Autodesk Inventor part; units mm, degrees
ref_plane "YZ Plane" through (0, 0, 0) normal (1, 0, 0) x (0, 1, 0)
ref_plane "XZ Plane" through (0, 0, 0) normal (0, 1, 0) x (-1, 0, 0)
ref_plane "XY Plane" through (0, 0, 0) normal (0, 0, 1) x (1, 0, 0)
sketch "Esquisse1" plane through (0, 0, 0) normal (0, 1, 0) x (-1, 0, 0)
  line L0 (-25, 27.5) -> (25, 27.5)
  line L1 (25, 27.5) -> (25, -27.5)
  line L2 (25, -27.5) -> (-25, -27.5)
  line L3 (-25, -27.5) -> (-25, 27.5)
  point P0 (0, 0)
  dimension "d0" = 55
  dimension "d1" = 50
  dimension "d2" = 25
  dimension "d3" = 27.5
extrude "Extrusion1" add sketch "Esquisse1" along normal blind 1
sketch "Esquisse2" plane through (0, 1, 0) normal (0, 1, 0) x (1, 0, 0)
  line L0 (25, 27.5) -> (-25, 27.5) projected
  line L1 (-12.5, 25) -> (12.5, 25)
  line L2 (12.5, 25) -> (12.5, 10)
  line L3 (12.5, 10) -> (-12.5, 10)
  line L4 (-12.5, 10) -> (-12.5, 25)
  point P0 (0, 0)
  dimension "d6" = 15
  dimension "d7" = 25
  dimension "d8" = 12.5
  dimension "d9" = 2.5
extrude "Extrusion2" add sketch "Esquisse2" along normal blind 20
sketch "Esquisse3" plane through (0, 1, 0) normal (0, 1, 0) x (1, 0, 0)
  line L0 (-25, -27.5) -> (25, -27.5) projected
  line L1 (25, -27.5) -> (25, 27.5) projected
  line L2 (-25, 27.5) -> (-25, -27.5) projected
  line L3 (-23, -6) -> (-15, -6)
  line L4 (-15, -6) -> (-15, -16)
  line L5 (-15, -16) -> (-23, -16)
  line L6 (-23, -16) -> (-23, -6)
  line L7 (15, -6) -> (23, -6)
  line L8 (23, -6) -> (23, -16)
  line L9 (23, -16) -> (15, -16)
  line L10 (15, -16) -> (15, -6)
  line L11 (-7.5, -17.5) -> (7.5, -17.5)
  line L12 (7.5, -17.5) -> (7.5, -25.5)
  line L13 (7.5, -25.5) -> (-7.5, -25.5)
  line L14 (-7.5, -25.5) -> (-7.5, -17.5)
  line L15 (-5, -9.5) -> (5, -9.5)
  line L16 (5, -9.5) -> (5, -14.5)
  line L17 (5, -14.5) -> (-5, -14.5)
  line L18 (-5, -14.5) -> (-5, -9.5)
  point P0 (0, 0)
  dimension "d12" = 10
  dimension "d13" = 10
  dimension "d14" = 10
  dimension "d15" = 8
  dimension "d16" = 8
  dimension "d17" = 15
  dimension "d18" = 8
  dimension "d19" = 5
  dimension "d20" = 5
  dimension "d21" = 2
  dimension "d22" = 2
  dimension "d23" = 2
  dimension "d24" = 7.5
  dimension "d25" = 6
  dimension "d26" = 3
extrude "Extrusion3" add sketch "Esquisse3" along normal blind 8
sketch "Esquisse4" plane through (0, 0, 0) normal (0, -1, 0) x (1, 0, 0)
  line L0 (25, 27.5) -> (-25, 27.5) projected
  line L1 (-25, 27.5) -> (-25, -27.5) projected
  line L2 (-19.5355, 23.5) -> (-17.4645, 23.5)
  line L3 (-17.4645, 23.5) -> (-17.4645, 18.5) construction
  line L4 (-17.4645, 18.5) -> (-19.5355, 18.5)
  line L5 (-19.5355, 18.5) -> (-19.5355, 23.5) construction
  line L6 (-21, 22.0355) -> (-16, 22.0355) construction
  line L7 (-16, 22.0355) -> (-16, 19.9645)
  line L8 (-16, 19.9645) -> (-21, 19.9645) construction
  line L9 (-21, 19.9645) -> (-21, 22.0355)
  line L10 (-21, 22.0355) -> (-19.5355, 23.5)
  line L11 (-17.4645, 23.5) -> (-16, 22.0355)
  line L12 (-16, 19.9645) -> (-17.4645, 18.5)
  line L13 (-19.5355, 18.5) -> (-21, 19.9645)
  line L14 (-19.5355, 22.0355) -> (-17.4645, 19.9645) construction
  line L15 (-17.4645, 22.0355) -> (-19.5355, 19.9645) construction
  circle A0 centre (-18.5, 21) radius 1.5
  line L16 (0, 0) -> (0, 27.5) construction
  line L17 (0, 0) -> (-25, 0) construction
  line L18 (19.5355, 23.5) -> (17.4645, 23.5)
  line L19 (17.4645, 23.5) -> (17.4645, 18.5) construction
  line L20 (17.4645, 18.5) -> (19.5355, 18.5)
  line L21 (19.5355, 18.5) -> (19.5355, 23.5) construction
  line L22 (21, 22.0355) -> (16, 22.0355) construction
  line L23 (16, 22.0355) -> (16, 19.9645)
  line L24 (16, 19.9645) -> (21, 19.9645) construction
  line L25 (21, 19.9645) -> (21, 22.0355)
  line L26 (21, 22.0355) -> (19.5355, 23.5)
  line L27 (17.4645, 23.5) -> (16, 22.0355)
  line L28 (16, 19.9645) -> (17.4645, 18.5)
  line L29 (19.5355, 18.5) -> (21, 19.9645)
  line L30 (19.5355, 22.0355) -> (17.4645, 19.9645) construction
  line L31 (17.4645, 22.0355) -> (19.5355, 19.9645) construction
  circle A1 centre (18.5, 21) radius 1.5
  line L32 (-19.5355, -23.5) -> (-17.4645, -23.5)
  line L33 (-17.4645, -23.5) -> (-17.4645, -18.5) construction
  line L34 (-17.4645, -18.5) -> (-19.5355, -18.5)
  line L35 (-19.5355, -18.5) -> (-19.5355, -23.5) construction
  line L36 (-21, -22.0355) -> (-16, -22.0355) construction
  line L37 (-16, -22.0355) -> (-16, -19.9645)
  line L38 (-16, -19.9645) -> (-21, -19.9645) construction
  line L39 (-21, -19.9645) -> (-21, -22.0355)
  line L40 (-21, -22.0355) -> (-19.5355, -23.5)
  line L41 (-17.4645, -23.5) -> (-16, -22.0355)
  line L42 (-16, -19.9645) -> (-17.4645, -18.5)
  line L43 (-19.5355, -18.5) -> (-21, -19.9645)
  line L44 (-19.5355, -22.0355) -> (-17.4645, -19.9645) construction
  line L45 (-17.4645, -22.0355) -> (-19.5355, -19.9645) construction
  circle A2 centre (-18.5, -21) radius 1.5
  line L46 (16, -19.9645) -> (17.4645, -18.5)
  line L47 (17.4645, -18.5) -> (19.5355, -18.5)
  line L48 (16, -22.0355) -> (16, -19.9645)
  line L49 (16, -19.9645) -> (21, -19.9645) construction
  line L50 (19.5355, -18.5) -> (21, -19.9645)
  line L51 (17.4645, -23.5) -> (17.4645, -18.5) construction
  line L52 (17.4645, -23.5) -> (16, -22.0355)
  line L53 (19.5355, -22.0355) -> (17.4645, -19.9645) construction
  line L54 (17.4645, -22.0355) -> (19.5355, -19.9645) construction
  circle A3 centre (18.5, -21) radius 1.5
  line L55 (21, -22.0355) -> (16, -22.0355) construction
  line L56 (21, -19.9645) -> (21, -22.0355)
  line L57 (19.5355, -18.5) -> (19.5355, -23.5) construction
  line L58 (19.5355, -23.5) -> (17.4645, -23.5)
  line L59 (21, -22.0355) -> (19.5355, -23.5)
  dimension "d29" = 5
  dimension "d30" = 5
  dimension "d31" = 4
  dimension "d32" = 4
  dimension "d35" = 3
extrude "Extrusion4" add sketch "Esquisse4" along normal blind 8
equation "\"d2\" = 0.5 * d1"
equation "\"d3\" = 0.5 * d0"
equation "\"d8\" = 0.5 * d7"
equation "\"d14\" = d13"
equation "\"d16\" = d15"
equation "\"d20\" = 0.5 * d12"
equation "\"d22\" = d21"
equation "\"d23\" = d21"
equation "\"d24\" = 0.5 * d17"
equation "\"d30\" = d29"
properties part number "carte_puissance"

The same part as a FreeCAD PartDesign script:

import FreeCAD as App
import Part
import Sketcher
from FreeCAD import Vector

doc = App.newDocument("Part")
body = doc.addObject("PartDesign::Body", "Body")

sketch1 = body.newObject("Sketcher::SketchObject", "Sketch")
sketch1.AttachmentSupport = (doc.getObject("XZ_Plane"), [""])
sketch1.MapMode = "FlatFace"
sketch1.addGeometry(Part.LineSegment(Vector(-25, 28, 0), Vector(25, 28, 0)), False)
sketch1.addGeometry(Part.LineSegment(Vector(25, 28, 0), Vector(25, -28, 0)), False)
sketch1.addGeometry(Part.LineSegment(Vector(25, -28, 0), Vector(-25, -28, 0)), False)
sketch1.addGeometry(Part.LineSegment(Vector(-25, -28, 0), Vector(-25, 28, 0)), False)
sketch1.addConstraint(Sketcher.Constraint("Coincident", 0, 2, 1, 1))
sketch1.addConstraint(Sketcher.Constraint("Coincident", 1, 2, 2, 1))
sketch1.addConstraint(Sketcher.Constraint("Coincident", 2, 2, 3, 1))
sketch1.addConstraint(Sketcher.Constraint("Coincident", 3, 2, 0, 1))
sketch1.addConstraint(Sketcher.Constraint("Horizontal", 0))
sketch1.addConstraint(Sketcher.Constraint("Vertical", 1))
sketch1.addConstraint(Sketcher.Constraint("Horizontal", 2))
sketch1.addConstraint(Sketcher.Constraint("Vertical", 3))
sketch1.addConstraint(Sketcher.Constraint("Symmetric", 0, 2, 2, 2, -1, 1))
sketch1.addConstraint(Sketcher.Constraint("DistanceX", 0, 1, 0, 2, 50.0))
sketch1.addConstraint(Sketcher.Constraint("DistanceY", 1, 2, 1, 1, 55.0))
pad1 = body.newObject("PartDesign::Pad", "Pad")
pad1.Profile = sketch1
pad1.Length = 1
pad1.Reversed = True

sketch2 = body.newObject("Sketcher::SketchObject", "Sketch001")
sketch2.AttachmentSupport = (doc.getObject("XZ_Plane"), [""])
sketch2.MapMode = "FlatFace"
sketch2.AttachmentOffset = App.Placement(Vector(0, 0, -1), App.Rotation())
sketch2.addGeometry(Part.LineSegment(Vector(12, -25, 0), Vector(-12, -25, 0)), False)
sketch2.addGeometry(Part.LineSegment(Vector(-12, -25, 0), Vector(-12, -10, 0)), False)
sketch2.addGeometry(Part.LineSegment(Vector(-12, -10, 0), Vector(12, -10, 0)), False)
sketch2.addGeometry(Part.LineSegment(Vector(12, -10, 0), Vector(12, -25, 0)), False)
sketch2.addConstraint(Sketcher.Constraint("Coincident", 0, 2, 1, 1))
sketch2.addConstraint(Sketcher.Constraint("Coincident", 1, 2, 2, 1))
sketch2.addConstraint(Sketcher.Constraint("Coincident", 2, 2, 3, 1))
sketch2.addConstraint(Sketcher.Constraint("Coincident", 3, 2, 0, 1))
sketch2.addConstraint(Sketcher.Constraint("Horizontal", 0))
sketch2.addConstraint(Sketcher.Constraint("Vertical", 1))
sketch2.addConstraint(Sketcher.Constraint("Horizontal", 2))
sketch2.addConstraint(Sketcher.Constraint("Vertical", 3))
sketch2.addConstraint(Sketcher.Constraint("DistanceX", 0, 2, 0, 1, 25.0))
sketch2.addConstraint(Sketcher.Constraint("DistanceY", 1, 1, 1, 2, 15.0))
sketch2.addConstraint(Sketcher.Constraint("DistanceY", 0, 2, -1, 1, 25.0))
sketch2.addConstraint(Sketcher.Constraint("DistanceX", 0, 2, -1, 1, 12.5))
pad2 = body.newObject("PartDesign::Pad", "Pad001")
pad2.Profile = sketch2
pad2.Length = 20
pad2.Reversed = True

sketch3 = body.newObject("Sketcher::SketchObject", "Sketch002")
sketch3.AttachmentSupport = (doc.getObject("XZ_Plane"), [""])
sketch3.MapMode = "FlatFace"
sketch3.AttachmentOffset = App.Placement(Vector(0, 0, -1), App.Rotation())
sketch3.addGeometry(Part.LineSegment(Vector(-15, 6, 0), Vector(-23, 6, 0)), False)
sketch3.addGeometry(Part.LineSegment(Vector(-23, 6, 0), Vector(-23, 16, 0)), False)
sketch3.addGeometry(Part.LineSegment(Vector(-23, 16, 0), Vector(-15, 16, 0)), False)
sketch3.addGeometry(Part.LineSegment(Vector(-15, 16, 0), Vector(-15, 6, 0)), False)
sketch3.addGeometry(Part.LineSegment(Vector(23, 6, 0), Vector(15, 6, 0)), False)
sketch3.addGeometry(Part.LineSegment(Vector(15, 6, 0), Vector(15, 16, 0)), False)
sketch3.addGeometry(Part.LineSegment(Vector(15, 16, 0), Vector(23, 16, 0)), False)
sketch3.addGeometry(Part.LineSegment(Vector(23, 16, 0), Vector(23, 6, 0)), False)
sketch3.addGeometry(Part.LineSegment(Vector(8, 18, 0), Vector(-8, 18, 0)), False)
sketch3.addGeometry(Part.LineSegment(Vector(-8, 18, 0), Vector(-8, 26, 0)), False)
sketch3.addGeometry(Part.LineSegment(Vector(-8, 26, 0), Vector(8, 26, 0)), False)
sketch3.addGeometry(Part.LineSegment(Vector(8, 26, 0), Vector(8, 18, 0)), False)
sketch3.addGeometry(Part.LineSegment(Vector(5, 10, 0), Vector(-5, 10, 0)), False)
sketch3.addGeometry(Part.LineSegment(Vector(-5, 10, 0), Vector(-5, 14, 0)), False)
sketch3.addGeometry(Part.LineSegment(Vector(-5, 14, 0), Vector(5, 14, 0)), False)
sketch3.addGeometry(Part.LineSegment(Vector(5, 14, 0), Vector(5, 10, 0)), False)
sketch3.addConstraint(Sketcher.Constraint("Coincident", 0, 2, 1, 1))
sketch3.addConstraint(Sketcher.Constraint("Coincident", 1, 2, 2, 1))
sketch3.addConstraint(Sketcher.Constraint("Coincident", 2, 2, 3, 1))
sketch3.addConstraint(Sketcher.Constraint("Coincident", 3, 2, 0, 1))
sketch3.addConstraint(Sketcher.Constraint("Coincident", 4, 2, 5, 1))
sketch3.addConstraint(Sketcher.Constraint("Coincident", 5, 2, 6, 1))
sketch3.addConstraint(Sketcher.Constraint("Coincident", 6, 2, 7, 1))
sketch3.addConstraint(Sketcher.Constraint("Coincident", 7, 2, 4, 1))
sketch3.addConstraint(Sketcher.Constraint("Coincident", 8, 2, 9, 1))
sketch3.addConstraint(Sketcher.Constraint("Coincident", 9, 2, 10, 1))
sketch3.addConstraint(Sketcher.Constraint("Coincident", 10, 2, 11, 1))
sketch3.addConstraint(Sketcher.Constraint("Coincident", 11, 2, 8, 1))
sketch3.addConstraint(Sketcher.Constraint("Coincident", 12, 2, 13, 1))
sketch3.addConstraint(Sketcher.Constraint("Coincident", 13, 2, 14, 1))
sketch3.addConstraint(Sketcher.Constraint("Coincident", 14, 2, 15, 1))
sketch3.addConstraint(Sketcher.Constraint("Coincident", 15, 2, 12, 1))
sketch3.addConstraint(Sketcher.Constraint("Horizontal", 0))
sketch3.addConstraint(Sketcher.Constraint("Vertical", 1))
sketch3.addConstraint(Sketcher.Constraint("Horizontal", 2))
sketch3.addConstraint(Sketcher.Constraint("Vertical", 3))
sketch3.addConstraint(Sketcher.Constraint("Horizontal", 4))
sketch3.addConstraint(Sketcher.Constraint("Vertical", 5))
sketch3.addConstraint(Sketcher.Constraint("Horizontal", 6))
sketch3.addConstraint(Sketcher.Constraint("Vertical", 7))
sketch3.addConstraint(Sketcher.Constraint("Horizontal", 8))
sketch3.addConstraint(Sketcher.Constraint("Vertical", 9))
sketch3.addConstraint(Sketcher.Constraint("Horizontal", 10))
sketch3.addConstraint(Sketcher.Constraint("Vertical", 11))
sketch3.addConstraint(Sketcher.Constraint("Horizontal", 12))
sketch3.addConstraint(Sketcher.Constraint("Vertical", 13))
sketch3.addConstraint(Sketcher.Constraint("Horizontal", 14))
sketch3.addConstraint(Sketcher.Constraint("Vertical", 15))
sketch3.addConstraint(Sketcher.Constraint("Symmetric", 3, 2, 4, 2, -2))
sketch3.addConstraint(Sketcher.Constraint("Symmetric", 1, 2, 6, 2, -2))
sketch3.addConstraint(Sketcher.Constraint("Equal", 14, 1))
sketch3.addConstraint(Sketcher.Constraint("Equal", 6, 9))
sketch3.addConstraint(Sketcher.Constraint("DistanceX", 0, 2, 0, 1, 8.0))
sketch3.addConstraint(Sketcher.Constraint("DistanceX", 8, 2, 8, 1, 15.0))
sketch3.addConstraint(Sketcher.Constraint("DistanceX", 12, 2, 12, 1, 10.0))
sketch3.addConstraint(Sketcher.Constraint("DistanceY", 13, 1, 13, 2, 5.0))
sketch3.addConstraint(Sketcher.Constraint("DistanceY", -1, 1, 0, 2, 6.0))
sketch3.addConstraint(Sketcher.Constraint("DistanceX", 2, 2, -1, 1, 15.0))
sketch3.addConstraint(Sketcher.Constraint("DistanceX", 12, 2, -1, 1, 5.0))
sketch3.addConstraint(Sketcher.Constraint("DistanceY", 12, 2, 8, 2, 8.0))
sketch3.addConstraint(Sketcher.Constraint("DistanceX", 8, 2, -1, 1, 7.5))
sketch3.addConstraint(Sketcher.Constraint("DistanceY", -1, 1, 8, 2, 17.5))
pad3 = body.newObject("PartDesign::Pad", "Pad002")
pad3.Profile = sketch3
pad3.Length = 8
pad3.Reversed = True

sketch4 = body.newObject("Sketcher::SketchObject", "Sketch003")
sketch4.AttachmentSupport = (doc.getObject("XZ_Plane"), [""])
sketch4.MapMode = "FlatFace"
sketch4.addGeometry(Part.LineSegment(Vector(-17.5, 23.5, 0), Vector(-19.5, 23.5, 0)), False)
sketch4.addGeometry(Part.LineSegment(Vector(-19.5, 23.5, 0), Vector(-21, 22, 0)), False)
sketch4.addGeometry(Part.LineSegment(Vector(-21, 22, 0), Vector(-21, 20, 0)), False)
sketch4.addGeometry(Part.LineSegment(Vector(-21, 20, 0), Vector(-19.5, 18.5, 0)), False)
sketch4.addGeometry(Part.LineSegment(Vector(-19.5, 18.5, 0), Vector(-17.5, 18.5, 0)), False)
sketch4.addGeometry(Part.LineSegment(Vector(-17.5, 18.5, 0), Vector(-16, 20, 0)), False)
sketch4.addGeometry(Part.LineSegment(Vector(-16, 20, 0), Vector(-16, 22, 0)), False)
sketch4.addGeometry(Part.LineSegment(Vector(-16, 22, 0), Vector(-17.5, 23.5, 0)), False)
sketch4.addGeometry(Part.Circle(Vector(-18.5, 21, 0), Vector(0, 0, 1), 1.5), False)
sketch4.addGeometry(Part.LineSegment(Vector(21, 22, 0), Vector(19.5, 23.5, 0)), False)
sketch4.addGeometry(Part.LineSegment(Vector(19.5, 23.5, 0), Vector(17.5, 23.5, 0)), False)
sketch4.addGeometry(Part.LineSegment(Vector(17.5, 23.5, 0), Vector(16, 22, 0)), False)
sketch4.addGeometry(Part.LineSegment(Vector(16, 22, 0), Vector(16, 20, 0)), False)
sketch4.addGeometry(Part.LineSegment(Vector(16, 20, 0), Vector(17.5, 18.5, 0)), False)
sketch4.addGeometry(Part.LineSegment(Vector(17.5, 18.5, 0), Vector(19.5, 18.5, 0)), False)
sketch4.addGeometry(Part.LineSegment(Vector(19.5, 18.5, 0), Vector(21, 20, 0)), False)
sketch4.addGeometry(Part.LineSegment(Vector(21, 20, 0), Vector(21, 22, 0)), False)
sketch4.addGeometry(Part.Circle(Vector(18.5, 21, 0), Vector(0, 0, 1), 1.5), False)
sketch4.addGeometry(Part.LineSegment(Vector(-21, -22, 0), Vector(-19.5, -23.5, 0)), False)
sketch4.addGeometry(Part.LineSegment(Vector(-19.5, -23.5, 0), Vector(-17.5, -23.5, 0)), False)
sketch4.addGeometry(Part.LineSegment(Vector(-17.5, -23.5, 0), Vector(-16, -22, 0)), False)
sketch4.addGeometry(Part.LineSegment(Vector(-16, -22, 0), Vector(-16, -20, 0)), False)
sketch4.addGeometry(Part.LineSegment(Vector(-16, -20, 0), Vector(-17.5, -18.5, 0)), False)
sketch4.addGeometry(Part.LineSegment(Vector(-17.5, -18.5, 0), Vector(-19.5, -18.5, 0)), False)
sketch4.addGeometry(Part.LineSegment(Vector(-19.5, -18.5, 0), Vector(-21, -20, 0)), False)
sketch4.addGeometry(Part.LineSegment(Vector(-21, -20, 0), Vector(-21, -22, 0)), False)
sketch4.addGeometry(Part.Circle(Vector(-18.5, -21, 0), Vector(0, 0, 1), 1.5), False)
sketch4.addGeometry(Part.LineSegment(Vector(17.5, -18.5, 0), Vector(16, -20, 0)), False)
sketch4.addGeometry(Part.LineSegment(Vector(16, -20, 0), Vector(16, -22, 0)), False)
sketch4.addGeometry(Part.LineSegment(Vector(16, -22, 0), Vector(17.5, -23.5, 0)), False)
sketch4.addGeometry(Part.LineSegment(Vector(17.5, -23.5, 0), Vector(19.5, -23.5, 0)), False)
sketch4.addGeometry(Part.LineSegment(Vector(19.5, -23.5, 0), Vector(21, -22, 0)), False)
sketch4.addGeometry(Part.LineSegment(Vector(21, -22, 0), Vector(21, -20, 0)), False)
sketch4.addGeometry(Part.LineSegment(Vector(21, -20, 0), Vector(19.5, -18.5, 0)), False)
sketch4.addGeometry(Part.LineSegment(Vector(19.5, -18.5, 0), Vector(17.5, -18.5, 0)), False)
sketch4.addGeometry(Part.Circle(Vector(18.5, -21, 0), Vector(0, 0, 1), 1.5), False)
sketch4.addConstraint(Sketcher.Constraint("Coincident", 0, 2, 1, 1))
sketch4.addConstraint(Sketcher.Constraint("Coincident", 1, 2, 2, 1))
sketch4.addConstraint(Sketcher.Constraint("Coincident", 2, 2, 3, 1))
sketch4.addConstraint(Sketcher.Constraint("Coincident", 3, 2, 4, 1))
sketch4.addConstraint(Sketcher.Constraint("Coincident", 4, 2, 5, 1))
sketch4.addConstraint(Sketcher.Constraint("Coincident", 5, 2, 6, 1))
sketch4.addConstraint(Sketcher.Constraint("Coincident", 6, 2, 7, 1))
sketch4.addConstraint(Sketcher.Constraint("Coincident", 7, 2, 0, 1))
sketch4.addConstraint(Sketcher.Constraint("Coincident", 9, 2, 10, 1))
sketch4.addConstraint(Sketcher.Constraint("Coincident", 10, 2, 11, 1))
sketch4.addConstraint(Sketcher.Constraint("Coincident", 11, 2, 12, 1))
sketch4.addConstraint(Sketcher.Constraint("Coincident", 12, 2, 13, 1))
sketch4.addConstraint(Sketcher.Constraint("Coincident", 13, 2, 14, 1))
sketch4.addConstraint(Sketcher.Constraint("Coincident", 14, 2, 15, 1))
sketch4.addConstraint(Sketcher.Constraint("Coincident", 15, 2, 16, 1))
sketch4.addConstraint(Sketcher.Constraint("Coincident", 16, 2, 9, 1))
sketch4.addConstraint(Sketcher.Constraint("Coincident", 18, 2, 19, 1))
sketch4.addConstraint(Sketcher.Constraint("Coincident", 19, 2, 20, 1))
sketch4.addConstraint(Sketcher.Constraint("Coincident", 20, 2, 21, 1))
sketch4.addConstraint(Sketcher.Constraint("Coincident", 21, 2, 22, 1))
sketch4.addConstraint(Sketcher.Constraint("Coincident", 22, 2, 23, 1))
sketch4.addConstraint(Sketcher.Constraint("Coincident", 23, 2, 24, 1))
sketch4.addConstraint(Sketcher.Constraint("Coincident", 24, 2, 25, 1))
sketch4.addConstraint(Sketcher.Constraint("Coincident", 25, 2, 18, 1))
sketch4.addConstraint(Sketcher.Constraint("Coincident", 27, 2, 28, 1))
sketch4.addConstraint(Sketcher.Constraint("Coincident", 28, 2, 29, 1))
sketch4.addConstraint(Sketcher.Constraint("Coincident", 29, 2, 30, 1))
sketch4.addConstraint(Sketcher.Constraint("Coincident", 30, 2, 31, 1))
sketch4.addConstraint(Sketcher.Constraint("Coincident", 31, 2, 32, 1))
sketch4.addConstraint(Sketcher.Constraint("Coincident", 32, 2, 33, 1))
sketch4.addConstraint(Sketcher.Constraint("Coincident", 33, 2, 34, 1))
sketch4.addConstraint(Sketcher.Constraint("Coincident", 34, 2, 27, 1))
sketch4.addConstraint(Sketcher.Constraint("Horizontal", 0))
sketch4.addConstraint(Sketcher.Constraint("Vertical", 2))
sketch4.addConstraint(Sketcher.Constraint("Horizontal", 4))
sketch4.addConstraint(Sketcher.Constraint("Vertical", 6))
sketch4.addConstraint(Sketcher.Constraint("Horizontal", 10))
sketch4.addConstraint(Sketcher.Constraint("Vertical", 12))
sketch4.addConstraint(Sketcher.Constraint("Horizontal", 14))
sketch4.addConstraint(Sketcher.Constraint("Vertical", 16))
sketch4.addConstraint(Sketcher.Constraint("Horizontal", 19))
sketch4.addConstraint(Sketcher.Constraint("Vertical", 21))
sketch4.addConstraint(Sketcher.Constraint("Horizontal", 23))
sketch4.addConstraint(Sketcher.Constraint("Vertical", 25))
sketch4.addConstraint(Sketcher.Constraint("Vertical", 28))
sketch4.addConstraint(Sketcher.Constraint("Horizontal", 30))
sketch4.addConstraint(Sketcher.Constraint("Vertical", 32))
sketch4.addConstraint(Sketcher.Constraint("Horizontal", 34))
sketch4.addConstraint(Sketcher.Constraint("Equal", 8, 17))
sketch4.addConstraint(Sketcher.Constraint("Equal", 17, 26))
sketch4.addConstraint(Sketcher.Constraint("Equal", 26, 35))
sketch4.addConstraint(Sketcher.Constraint("Symmetric", 17, 3, 26, 3, -1, 1))
sketch4.addConstraint(Sketcher.Constraint("Symmetric", 8, 3, 35, 3, -1, 1))
sketch4.addConstraint(Sketcher.Constraint("Symmetric", 9, 2, 18, 2, -1, 1))
sketch4.addConstraint(Sketcher.Constraint("Symmetric", 11, 2, 20, 2, -1, 1))
sketch4.addConstraint(Sketcher.Constraint("Symmetric", 13, 2, 22, 2, -1, 1))
sketch4.addConstraint(Sketcher.Constraint("Symmetric", 15, 2, 24, 2, -1, 1))
sketch4.addConstraint(Sketcher.Constraint("Symmetric", 5, 2, 27, 2, -1, 1))
sketch4.addConstraint(Sketcher.Constraint("Symmetric", 7, 2, 29, 2, -1, 1))
sketch4.addConstraint(Sketcher.Constraint("Symmetric", 1, 2, 31, 2, -1, 1))
sketch4.addConstraint(Sketcher.Constraint("Symmetric", 3, 2, 33, 2, -1, 1))
sketch4.addConstraint(Sketcher.Constraint("Symmetric", 8, 3, 17, 3, -2))
sketch4.addConstraint(Sketcher.Constraint("Symmetric", 0, 2, 9, 2, -2))
sketch4.addConstraint(Sketcher.Constraint("Symmetric", 6, 2, 11, 2, -2))
sketch4.addConstraint(Sketcher.Constraint("Symmetric", 4, 2, 13, 2, -2))
sketch4.addConstraint(Sketcher.Constraint("Symmetric", 2, 2, 15, 2, -2))
sketch4.addConstraint(Sketcher.Constraint("Perpendicular", 1, 3))
sketch4.addConstraint(Sketcher.Constraint("Perpendicular", 3, 5))
sketch4.addConstraint(Sketcher.Constraint("Perpendicular", 5, 7))
sketch4.addConstraint(Sketcher.Constraint("Parallel", 7, 9))
sketch4.addConstraint(Sketcher.Constraint("Perpendicular", 9, 11))
sketch4.addConstraint(Sketcher.Constraint("Perpendicular", 11, 13))
sketch4.addConstraint(Sketcher.Constraint("Perpendicular", 13, 15))
sketch4.addConstraint(Sketcher.Constraint("Perpendicular", 15, 18))
sketch4.addConstraint(Sketcher.Constraint("Perpendicular", 18, 20))
sketch4.addConstraint(Sketcher.Constraint("Perpendicular", 20, 22))
sketch4.addConstraint(Sketcher.Constraint("Perpendicular", 22, 24))
sketch4.addConstraint(Sketcher.Constraint("Parallel", 24, 27))
sketch4.addConstraint(Sketcher.Constraint("Perpendicular", 27, 29))
sketch4.addConstraint(Sketcher.Constraint("Perpendicular", 29, 31))
sketch4.addConstraint(Sketcher.Constraint("Perpendicular", 31, 33))
sketch4.addConstraint(Sketcher.Constraint("Horizontal", 2, 2, 5, 2))
sketch4.addConstraint(Sketcher.Constraint("Horizontal", 1, 2, 6, 2))
sketch4.addConstraint(Sketcher.Constraint("Horizontal", 5, 2, 12, 2))
sketch4.addConstraint(Sketcher.Constraint("Vertical", 0, 2, 3, 2))
sketch4.addConstraint(Sketcher.Constraint("Equal", 34, 2))
sketch4.addConstraint(Sketcher.Constraint("Diameter", 8, 3.0))
sketch4.addConstraint(Sketcher.Constraint("DistanceY", 3, 2, 0, 2, 5.0))
sketch4.addConstraint(Sketcher.Constraint("DistanceY", -1, 1, 8, 3, 21.0))
sketch4.addConstraint(Sketcher.Constraint("DistanceX", 1, 2, -1, 1, 21.0))
sketch4.addConstraint(Sketcher.Constraint("DistanceX", 8, 3, 17, 3, 37.0))
sketch4.addConstraint(Sketcher.Constraint("DistanceY", 18, 2, 3, 2, 42.0))
sketch4.addConstraint(Sketcher.Constraint("DistanceX", 0, 2, 0, 1, 2.071))
pad4 = body.newObject("PartDesign::Pad", "Pad003")
pad4.Profile = sketch4
pad4.Length = 8

doc.recompute()
